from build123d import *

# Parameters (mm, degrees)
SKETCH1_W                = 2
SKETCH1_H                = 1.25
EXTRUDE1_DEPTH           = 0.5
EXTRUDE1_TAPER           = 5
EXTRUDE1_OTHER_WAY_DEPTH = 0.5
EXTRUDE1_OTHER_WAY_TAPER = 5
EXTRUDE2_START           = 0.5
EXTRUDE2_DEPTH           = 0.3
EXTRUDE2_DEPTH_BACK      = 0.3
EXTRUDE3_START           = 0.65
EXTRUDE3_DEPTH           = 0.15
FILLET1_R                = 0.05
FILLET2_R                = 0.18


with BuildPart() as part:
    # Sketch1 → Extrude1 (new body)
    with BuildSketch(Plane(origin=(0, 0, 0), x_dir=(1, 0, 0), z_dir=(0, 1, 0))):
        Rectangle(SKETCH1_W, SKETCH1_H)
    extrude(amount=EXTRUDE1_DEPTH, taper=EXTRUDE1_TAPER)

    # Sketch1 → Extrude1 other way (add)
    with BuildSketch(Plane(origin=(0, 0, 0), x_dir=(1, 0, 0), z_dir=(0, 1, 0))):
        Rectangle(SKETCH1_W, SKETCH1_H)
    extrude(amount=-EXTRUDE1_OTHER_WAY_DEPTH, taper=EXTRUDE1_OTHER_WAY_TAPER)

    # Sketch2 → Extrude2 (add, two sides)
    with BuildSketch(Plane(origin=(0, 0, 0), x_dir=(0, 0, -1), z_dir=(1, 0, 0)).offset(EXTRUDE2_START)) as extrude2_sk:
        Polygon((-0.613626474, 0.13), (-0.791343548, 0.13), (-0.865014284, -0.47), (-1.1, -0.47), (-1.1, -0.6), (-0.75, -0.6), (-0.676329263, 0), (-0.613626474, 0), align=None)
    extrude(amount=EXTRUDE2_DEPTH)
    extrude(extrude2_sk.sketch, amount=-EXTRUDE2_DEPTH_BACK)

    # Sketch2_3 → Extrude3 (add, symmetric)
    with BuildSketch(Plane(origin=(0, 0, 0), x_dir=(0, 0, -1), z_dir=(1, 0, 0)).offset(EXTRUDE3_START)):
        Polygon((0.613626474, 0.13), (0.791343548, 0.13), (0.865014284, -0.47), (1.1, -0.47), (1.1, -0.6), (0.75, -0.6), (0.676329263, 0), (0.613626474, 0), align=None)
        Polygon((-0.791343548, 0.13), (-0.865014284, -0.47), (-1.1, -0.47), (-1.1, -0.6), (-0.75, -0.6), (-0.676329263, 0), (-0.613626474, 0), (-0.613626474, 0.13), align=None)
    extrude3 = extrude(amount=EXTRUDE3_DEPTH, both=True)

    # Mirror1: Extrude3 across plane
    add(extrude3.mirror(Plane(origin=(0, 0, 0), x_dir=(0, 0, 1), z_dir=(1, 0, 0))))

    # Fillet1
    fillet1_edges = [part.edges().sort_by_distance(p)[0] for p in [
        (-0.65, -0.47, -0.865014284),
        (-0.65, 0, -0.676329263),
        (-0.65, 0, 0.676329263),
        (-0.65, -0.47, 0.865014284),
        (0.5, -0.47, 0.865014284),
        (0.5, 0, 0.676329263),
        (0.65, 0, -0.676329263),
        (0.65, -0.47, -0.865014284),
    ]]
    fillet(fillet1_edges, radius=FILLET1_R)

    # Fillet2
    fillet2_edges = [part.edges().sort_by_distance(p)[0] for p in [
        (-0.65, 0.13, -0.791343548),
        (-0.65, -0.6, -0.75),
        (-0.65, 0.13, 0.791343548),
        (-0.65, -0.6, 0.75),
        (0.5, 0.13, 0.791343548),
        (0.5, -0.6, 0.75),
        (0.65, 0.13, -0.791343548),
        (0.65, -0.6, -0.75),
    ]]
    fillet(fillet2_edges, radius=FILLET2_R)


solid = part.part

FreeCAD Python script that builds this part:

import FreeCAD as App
import Part
import Sketcher
from FreeCAD import Vector
Q = App.Units.Quantity


def edges_at(feature, points):
    """Names of the edges that pass closest to the given points."""
    edges = feature.Shape.Edges
    near = lambda p: min(range(len(edges)), key=lambda i: edges[i].distToShape(Part.Vertex(*p))[0])
    return sorted({f"Edge{near(p) + 1}" for p in points})

doc = App.newDocument("Part")
body = doc.addObject("PartDesign::Body", "Body")

# Sketch on XZ plane
sketch1 = body.newObject("Sketcher::SketchObject", "Sketch")
sketch1.AttachmentSupport = (doc.getObject("XZ_Plane"), [""])
sketch1.MapMode = "FlatFace"
sketch1.addGeometry(Part.LineSegment(Vector(-1, -0.625, 0), Vector(-1, 0.625, 0)), False)
sketch1.addGeometry(Part.LineSegment(Vector(-1, 0.625, 0), Vector(1, 0.625, 0)), False)
sketch1.addGeometry(Part.LineSegment(Vector(1, 0.625, 0), Vector(1, -0.625, 0)), False)
sketch1.addGeometry(Part.LineSegment(Vector(1, -0.625, 0), Vector(-1, -0.625, 0)), False)
sketch1.addConstraint(Sketcher.Constraint("Coincident", 0, 2, 1, 1))
sketch1.addConstraint(Sketcher.Constraint("Coincident", 1, 2, 2, 1))
sketch1.addConstraint(Sketcher.Constraint("Coincident", 2, 2, 3, 1))
sketch1.addConstraint(Sketcher.Constraint("Coincident", 3, 2, 0, 1))
sketch1.addConstraint(Sketcher.Constraint("Vertical", 0))
sketch1.addConstraint(Sketcher.Constraint("Horizontal", 1))
sketch1.addConstraint(Sketcher.Constraint("Vertical", 2))
sketch1.addConstraint(Sketcher.Constraint("Horizontal", 3))
sketch1.addConstraint(Sketcher.Constraint("Symmetric", 0, 2, 2, 2, -1, 1))
sketch1.addConstraint(Sketcher.Constraint("DistanceX", 1, 1, 1, 2, Q("2 mm")))
sketch1.addConstraint(Sketcher.Constraint("DistanceY", 0, 1, 0, 2, Q("1.25 mm")))
pad1 = body.newObject("PartDesign::Pad", "Pad")
pad1.Profile = sketch1
pad1.Length = 0.5
pad1.Reversed = True
pad1.TaperAngle = -5

# Sketch on XZ plane
sketch2 = body.newObject("Sketcher::SketchObject", "Sketch001")
sketch2.AttachmentSupport = (doc.getObject("XZ_Plane"), [""])
sketch2.MapMode = "FlatFace"
sketch2.addGeometry(Part.LineSegment(Vector(-1, -0.625, 0), Vector(-1, 0.625, 0)), False)
sketch2.addGeometry(Part.LineSegment(Vector(-1, 0.625, 0), Vector(1, 0.625, 0)), False)
sketch2.addGeometry(Part.LineSegment(Vector(1, 0.625, 0), Vector(1, -0.625, 0)), False)
sketch2.addGeometry(Part.LineSegment(Vector(1, -0.625, 0), Vector(-1, -0.625, 0)), False)
sketch2.addConstraint(Sketcher.Constraint("Coincident", 0, 2, 1, 1))
sketch2.addConstraint(Sketcher.Constraint("Coincident", 1, 2, 2, 1))
sketch2.addConstraint(Sketcher.Constraint("Coincident", 2, 2, 3, 1))
sketch2.addConstraint(Sketcher.Constraint("Coincident", 3, 2, 0, 1))
sketch2.addConstraint(Sketcher.Constraint("Vertical", 0))
sketch2.addConstraint(Sketcher.Constraint("Horizontal", 1))
sketch2.addConstraint(Sketcher.Constraint("Vertical", 2))
sketch2.addConstraint(Sketcher.Constraint("Horizontal", 3))
sketch2.addConstraint(Sketcher.Constraint("Symmetric", 0, 2, 2, 2, -1, 1))
sketch2.addConstraint(Sketcher.Constraint("DistanceX", 1, 1, 1, 2, Q("2 mm")))
sketch2.addConstraint(Sketcher.Constraint("DistanceY", 0, 1, 0, 2, Q("1.25 mm")))
pad2 = body.newObject("PartDesign::Pad", "Pad001")
pad2.Profile = sketch2
pad2.Length = 0.5
pad2.TaperAngle = -5

# Sketch on YZ plane
sketch3 = body.newObject("Sketcher::SketchObject", "Sketch002")
sketch3.AttachmentSupport = (doc.getObject("YZ_Plane"), [""])
sketch3.MapMode = "FlatFace"
sketch3.AttachmentOffset = App.Placement(Vector(0, 0, 0.5), App.Rotation())
sketch3.addGeometry(Part.LineSegment(Vector(0.13, 0.613626, 0), Vector(0.13, 0.791344, 0)), False)
sketch3.addGeometry(Part.LineSegment(Vector(0.13, 0.791344, 0), Vector(-0.47, 0.865014, 0)), False)
sketch3.addGeometry(Part.LineSegment(Vector(-0.47, 0.865014, 0), Vector(-0.47, 1.1, 0)), False)
sketch3.addGeometry(Part.LineSegment(Vector(-0.47, 1.1, 0), Vector(-0.6, 1.1, 0)), False)
sketch3.addGeometry(Part.LineSegment(Vector(-0.6, 1.1, 0), Vector(-0.6, 0.75, 0)), False)
sketch3.addGeometry(Part.LineSegment(Vector(-0.6, 0.75, 0), Vector(0, 0.676329, 0)), False)
sketch3.addGeometry(Part.LineSegment(Vector(0, 0.676329, 0), Vector(0, 0.613626, 0)), False)
sketch3.addGeometry(Part.LineSegment(Vector(0, 0.613626, 0), Vector(0.13, 0.613626, 0)), False)
sketch3.addConstraint(Sketcher.Constraint("Coincident", 0, 2, 1, 1))
sketch3.addConstraint(Sketcher.Constraint("Coincident", 1, 2, 2, 1))
sketch3.addConstraint(Sketcher.Constraint("Coincident", 2, 2, 3, 1))
sketch3.addConstraint(Sketcher.Constraint("Coincident", 3, 2, 4, 1))
sketch3.addConstraint(Sketcher.Constraint("Coincident", 4, 2, 5, 1))
sketch3.addConstraint(Sketcher.Constraint("Coincident", 5, 2, 6, 1))
sketch3.addConstraint(Sketcher.Constraint("Coincident", 6, 2, 7, 1))
sketch3.addConstraint(Sketcher.Constraint("Coincident", 7, 2, 0, 1))
sketch3.addConstraint(Sketcher.Constraint("Vertical", 0))
sketch3.addConstraint(Sketcher.Constraint("Vertical", 2))
sketch3.addConstraint(Sketcher.Constraint("Horizontal", 3))
sketch3.addConstraint(Sketcher.Constraint("Vertical", 4))
sketch3.addConstraint(Sketcher.Constraint("Vertical", 6))
sketch3.addConstraint(Sketcher.Constraint("Horizontal", 7))
sketch3.addConstraint(Sketcher.Constraint("PointOnObject", 5, 2, -2))
sketch3.addConstraint(Sketcher.Constraint("Parallel", 1, 5))
sketch3.addConstraint(Sketcher.Constraint("Equal", 3, 7))
sketch3.addConstraint(Sketcher.Constraint("Angle", 1, Q("173 deg")))
sketch3.addConstraint(Sketcher.Constraint("DistanceX", 3, 2, 3, 1, Q("0.13 mm")))
sketch3.addConstraint(Sketcher.Constraint("DistanceY", 4, 2, 4, 1, Q("0.35 mm")))
sketch3.addConstraint(Sketcher.Constraint("DistanceY", -1, 1, 2, 2, Q("1.1 mm")))
sketch3.addConstraint(Sketcher.Constraint("DistanceX", 3, 2, -1, 1, Q("0.6 mm")))
sketch3.addConstraint(Sketcher.Constraint("DistanceY", 0, 1, 0, 2, Q("0.177717 mm")))
sketch3.addConstraint(Sketcher.Constraint("DistanceY", 2, 1, 2, 2, Q("0.234986 mm")))
pad3 = body.newObject("PartDesign::Pad", "Pad002")
pad3.Profile = sketch3
pad3.Type = "TwoLengths"
pad3.Length = 0.3
pad3.Length2 = 0.3

# Sketch on YZ plane
sketch4 = body.newObject("Sketcher::SketchObject", "Sketch003")
sketch4.AttachmentSupport = (doc.getObject("YZ_Plane"), [""])
sketch4.MapMode = "FlatFace"
sketch4.AttachmentOffset = App.Placement(Vector(0, 0, 0.65), App.Rotation())
sketch4.addGeometry(Part.LineSegment(Vector(0.13, -0.791344, 0), Vector(0.13, -0.613626, 0)), False)
sketch4.addGeometry(Part.LineSegment(Vector(0.13, -0.613626, 0), Vector(0, -0.613626, 0)), False)
sketch4.addGeometry(Part.LineSegment(Vector(0, -0.613626, 0), Vector(0, -0.676329, 0)), False)
sketch4.addGeometry(Part.LineSegment(Vector(0, -0.676329, 0), Vector(-0.6, -0.75, 0)), False)
sketch4.addGeometry(Part.LineSegment(Vector(-0.6, -0.75, 0), Vector(-0.6, -1.1, 0)), False)
sketch4.addGeometry(Part.LineSegment(Vector(-0.6, -1.1, 0), Vector(-0.47, -1.1, 0)), False)
sketch4.addGeometry(Part.LineSegment(Vector(-0.47, -1.1, 0), Vector(-0.47, -0.865014, 0)), False)
sketch4.addGeometry(Part.LineSegment(Vector(-0.47, -0.865014, 0), Vector(0.13, -0.791344, 0)), False)
sketch4.addGeometry(Part.LineSegment(Vector(0.13, 0.791344, 0), Vector(-0.47, 0.865014, 0)), False)
sketch4.addGeometry(Part.LineSegment(Vector(-0.47, 0.865014, 0), Vector(-0.47, 1.1, 0)), False)
sketch4.addGeometry(Part.LineSegment(Vector(-0.47, 1.1, 0), Vector(-0.6, 1.1, 0)), False)
sketch4.addGeometry(Part.LineSegment(Vector(-0.6, 1.1, 0), Vector(-0.6, 0.75, 0)), False)
sketch4.addGeometry(Part.LineSegment(Vector(-0.6, 0.75, 0), Vector(0, 0.676329, 0)), False)
sketch4.addGeometry(Part.LineSegment(Vector(0, 0.676329, 0), Vector(0, 0.613626, 0)), False)
sketch4.addGeometry(Part.LineSegment(Vector(0, 0.613626, 0), Vector(0.13, 0.613626, 0)), False)
sketch4.addGeometry(Part.LineSegment(Vector(0.13, 0.613626, 0), Vector(0.13, 0.791344, 0)), False)
sketch4.addConstraint(Sketcher.Constraint("Coincident", 0, 2, 1, 1))
sketch4.addConstraint(Sketcher.Constraint("Coincident", 1, 2, 2, 1))
sketch4.addConstraint(Sketcher.Constraint("Coincident", 2, 2, 3, 1))
sketch4.addConstraint(Sketcher.Constraint("Coincident", 3, 2, 4, 1))
sketch4.addConstraint(Sketcher.Constraint("Coincident", 4, 2, 5, 1))
sketch4.addConstraint(Sketcher.Constraint("Coincident", 5, 2, 6, 1))
sketch4.addConstraint(Sketcher.Constraint("Coincident", 6, 2, 7, 1))
sketch4.addConstraint(Sketcher.Constraint("Coincident", 7, 2, 0, 1))
sketch4.addConstraint(Sketcher.Constraint("Coincident", 8, 2, 9, 1))
sketch4.addConstraint(Sketcher.Constraint("Coincident", 9, 2, 10, 1))
sketch4.addConstraint(Sketcher.Constraint("Coincident", 10, 2, 11, 1))
sketch4.addConstraint(Sketcher.Constraint("Coincident", 11, 2, 12, 1))
sketch4.addConstraint(Sketcher.Constraint("Coincident", 12, 2, 13, 1))
sketch4.addConstraint(Sketcher.Constraint("Coincident", 13, 2, 14, 1))
sketch4.addConstraint(Sketcher.Constraint("Coincident", 14, 2, 15, 1))
sketch4.addConstraint(Sketcher.Constraint("Coincident", 15, 2, 8, 1))
sketch4.addConstraint(Sketcher.Constraint("Vertical", 0))
sketch4.addConstraint(Sketcher.Constraint("Horizontal", 1))
sketch4.addConstraint(Sketcher.Constraint("Vertical", 2))
sketch4.addConstraint(Sketcher.Constraint("Vertical", 4))
sketch4.addConstraint(Sketcher.Constraint("Horizontal", 5))
sketch4.addConstraint(Sketcher.Constraint("Vertical", 6))
sketch4.addConstraint(Sketcher.Constraint("Vertical", 9))
sketch4.addConstraint(Sketcher.Constraint("Horizontal", 10))
sketch4.addConstraint(Sketcher.Constraint("Vertical", 11))
sketch4.addConstraint(Sketcher.Constraint("Vertical", 13))
sketch4.addConstraint(Sketcher.Constraint("Horizontal", 14))
sketch4.addConstraint(Sketcher.Constraint("Vertical", 15))
sketch4.addConstraint(Sketcher.Constraint("Symmetric", 2, 2, 12, 2, -1, 1))
sketch4.addConstraint(Sketcher.Constraint("Symmetric", 6, 2, 8, 2, -1))
sketch4.addConstraint(Sketcher.Constraint("Symmetric", 4, 2, 10, 2, -1))
sketch4.addConstraint(Sketcher.Constraint("Symmetric", 1, 2, 13, 2, -1))
sketch4.addConstraint(Sketcher.Constraint("Symmetric", 7, 2, 15, 2, -1))
sketch4.addConstraint(Sketcher.Constraint("Parallel", 3, 7))
sketch4.addConstraint(Sketcher.Constraint("Parallel", 8, 12))
sketch4.addConstraint(Sketcher.Constraint("Equal", 1, 5))
sketch4.addConstraint(Sketcher.Constraint("Angle", 3, Q("-173 deg")))
sketch4.addConstraint(Sketcher.Constraint("DistanceX", 1, 2, 1, 1, Q("0.13 mm")))
sketch4.addConstraint(Sketcher.Constraint("DistanceY", 4, 2, 4, 1, Q("0.35 mm")))
sketch4.addConstraint(Sketcher.Constraint("DistanceX", 3, 2, -1, 1, Q("0.6 mm")))
sketch4.addConstraint(Sketcher.Constraint("DistanceY", 4, 2, -1, 1, Q("1.1 mm")))
sketch4.addConstraint(Sketcher.Constraint("DistanceY", 0, 1, 0, 2, Q("0.177717 mm")))
sketch4.addConstraint(Sketcher.Constraint("DistanceY", 2, 2, 2, 1, Q("0.062703 mm")))
pad4 = body.newObject("PartDesign::Pad", "Pad003")
pad4.Profile = sketch4
pad4.Length = 0.3
pad4.Midplane = True
doc.recompute()

mirrored = body.newObject("PartDesign::Mirrored", "Mirrored")
mirrored.Originals = [pad4]
mirrored.MirrorPlane = (doc.getObject("YZ_Plane"), [""])
body.Tip = mirrored
doc.recompute()

fillet = body.newObject("PartDesign::Fillet", "Fillet")
fillet.Base = (mirrored, edges_at(mirrored, [
    (-0.65, -0.47, -0.865),
    (-0.65, 0, -0.676),
    (-0.65, 0, 0.676),
    (-0.65, -0.47, 0.865),
    (0.5, -0.47, 0.865),
    (0.5, 0, 0.676),
    (0.65, 0, -0.676),
    (0.65, -0.47, -0.865),
]))
fillet.Radius = 0.05
doc.recompute()

fillet2 = body.newObject("PartDesign::Fillet", "Fillet001")
fillet2.Base = (fillet, edges_at(fillet, [
    (-0.65, 0.13, -0.791),
    (-0.65, -0.6, -0.75),
    (-0.65, 0.13, 0.791),
    (-0.65, -0.6, 0.75),
    (0.5, 0.13, 0.791),
    (0.5, -0.6, 0.75),
    (0.65, 0.13, -0.791),
    (0.65, -0.6, -0.75),
]))
fillet2.Radius = 0.18

doc.recompute()
